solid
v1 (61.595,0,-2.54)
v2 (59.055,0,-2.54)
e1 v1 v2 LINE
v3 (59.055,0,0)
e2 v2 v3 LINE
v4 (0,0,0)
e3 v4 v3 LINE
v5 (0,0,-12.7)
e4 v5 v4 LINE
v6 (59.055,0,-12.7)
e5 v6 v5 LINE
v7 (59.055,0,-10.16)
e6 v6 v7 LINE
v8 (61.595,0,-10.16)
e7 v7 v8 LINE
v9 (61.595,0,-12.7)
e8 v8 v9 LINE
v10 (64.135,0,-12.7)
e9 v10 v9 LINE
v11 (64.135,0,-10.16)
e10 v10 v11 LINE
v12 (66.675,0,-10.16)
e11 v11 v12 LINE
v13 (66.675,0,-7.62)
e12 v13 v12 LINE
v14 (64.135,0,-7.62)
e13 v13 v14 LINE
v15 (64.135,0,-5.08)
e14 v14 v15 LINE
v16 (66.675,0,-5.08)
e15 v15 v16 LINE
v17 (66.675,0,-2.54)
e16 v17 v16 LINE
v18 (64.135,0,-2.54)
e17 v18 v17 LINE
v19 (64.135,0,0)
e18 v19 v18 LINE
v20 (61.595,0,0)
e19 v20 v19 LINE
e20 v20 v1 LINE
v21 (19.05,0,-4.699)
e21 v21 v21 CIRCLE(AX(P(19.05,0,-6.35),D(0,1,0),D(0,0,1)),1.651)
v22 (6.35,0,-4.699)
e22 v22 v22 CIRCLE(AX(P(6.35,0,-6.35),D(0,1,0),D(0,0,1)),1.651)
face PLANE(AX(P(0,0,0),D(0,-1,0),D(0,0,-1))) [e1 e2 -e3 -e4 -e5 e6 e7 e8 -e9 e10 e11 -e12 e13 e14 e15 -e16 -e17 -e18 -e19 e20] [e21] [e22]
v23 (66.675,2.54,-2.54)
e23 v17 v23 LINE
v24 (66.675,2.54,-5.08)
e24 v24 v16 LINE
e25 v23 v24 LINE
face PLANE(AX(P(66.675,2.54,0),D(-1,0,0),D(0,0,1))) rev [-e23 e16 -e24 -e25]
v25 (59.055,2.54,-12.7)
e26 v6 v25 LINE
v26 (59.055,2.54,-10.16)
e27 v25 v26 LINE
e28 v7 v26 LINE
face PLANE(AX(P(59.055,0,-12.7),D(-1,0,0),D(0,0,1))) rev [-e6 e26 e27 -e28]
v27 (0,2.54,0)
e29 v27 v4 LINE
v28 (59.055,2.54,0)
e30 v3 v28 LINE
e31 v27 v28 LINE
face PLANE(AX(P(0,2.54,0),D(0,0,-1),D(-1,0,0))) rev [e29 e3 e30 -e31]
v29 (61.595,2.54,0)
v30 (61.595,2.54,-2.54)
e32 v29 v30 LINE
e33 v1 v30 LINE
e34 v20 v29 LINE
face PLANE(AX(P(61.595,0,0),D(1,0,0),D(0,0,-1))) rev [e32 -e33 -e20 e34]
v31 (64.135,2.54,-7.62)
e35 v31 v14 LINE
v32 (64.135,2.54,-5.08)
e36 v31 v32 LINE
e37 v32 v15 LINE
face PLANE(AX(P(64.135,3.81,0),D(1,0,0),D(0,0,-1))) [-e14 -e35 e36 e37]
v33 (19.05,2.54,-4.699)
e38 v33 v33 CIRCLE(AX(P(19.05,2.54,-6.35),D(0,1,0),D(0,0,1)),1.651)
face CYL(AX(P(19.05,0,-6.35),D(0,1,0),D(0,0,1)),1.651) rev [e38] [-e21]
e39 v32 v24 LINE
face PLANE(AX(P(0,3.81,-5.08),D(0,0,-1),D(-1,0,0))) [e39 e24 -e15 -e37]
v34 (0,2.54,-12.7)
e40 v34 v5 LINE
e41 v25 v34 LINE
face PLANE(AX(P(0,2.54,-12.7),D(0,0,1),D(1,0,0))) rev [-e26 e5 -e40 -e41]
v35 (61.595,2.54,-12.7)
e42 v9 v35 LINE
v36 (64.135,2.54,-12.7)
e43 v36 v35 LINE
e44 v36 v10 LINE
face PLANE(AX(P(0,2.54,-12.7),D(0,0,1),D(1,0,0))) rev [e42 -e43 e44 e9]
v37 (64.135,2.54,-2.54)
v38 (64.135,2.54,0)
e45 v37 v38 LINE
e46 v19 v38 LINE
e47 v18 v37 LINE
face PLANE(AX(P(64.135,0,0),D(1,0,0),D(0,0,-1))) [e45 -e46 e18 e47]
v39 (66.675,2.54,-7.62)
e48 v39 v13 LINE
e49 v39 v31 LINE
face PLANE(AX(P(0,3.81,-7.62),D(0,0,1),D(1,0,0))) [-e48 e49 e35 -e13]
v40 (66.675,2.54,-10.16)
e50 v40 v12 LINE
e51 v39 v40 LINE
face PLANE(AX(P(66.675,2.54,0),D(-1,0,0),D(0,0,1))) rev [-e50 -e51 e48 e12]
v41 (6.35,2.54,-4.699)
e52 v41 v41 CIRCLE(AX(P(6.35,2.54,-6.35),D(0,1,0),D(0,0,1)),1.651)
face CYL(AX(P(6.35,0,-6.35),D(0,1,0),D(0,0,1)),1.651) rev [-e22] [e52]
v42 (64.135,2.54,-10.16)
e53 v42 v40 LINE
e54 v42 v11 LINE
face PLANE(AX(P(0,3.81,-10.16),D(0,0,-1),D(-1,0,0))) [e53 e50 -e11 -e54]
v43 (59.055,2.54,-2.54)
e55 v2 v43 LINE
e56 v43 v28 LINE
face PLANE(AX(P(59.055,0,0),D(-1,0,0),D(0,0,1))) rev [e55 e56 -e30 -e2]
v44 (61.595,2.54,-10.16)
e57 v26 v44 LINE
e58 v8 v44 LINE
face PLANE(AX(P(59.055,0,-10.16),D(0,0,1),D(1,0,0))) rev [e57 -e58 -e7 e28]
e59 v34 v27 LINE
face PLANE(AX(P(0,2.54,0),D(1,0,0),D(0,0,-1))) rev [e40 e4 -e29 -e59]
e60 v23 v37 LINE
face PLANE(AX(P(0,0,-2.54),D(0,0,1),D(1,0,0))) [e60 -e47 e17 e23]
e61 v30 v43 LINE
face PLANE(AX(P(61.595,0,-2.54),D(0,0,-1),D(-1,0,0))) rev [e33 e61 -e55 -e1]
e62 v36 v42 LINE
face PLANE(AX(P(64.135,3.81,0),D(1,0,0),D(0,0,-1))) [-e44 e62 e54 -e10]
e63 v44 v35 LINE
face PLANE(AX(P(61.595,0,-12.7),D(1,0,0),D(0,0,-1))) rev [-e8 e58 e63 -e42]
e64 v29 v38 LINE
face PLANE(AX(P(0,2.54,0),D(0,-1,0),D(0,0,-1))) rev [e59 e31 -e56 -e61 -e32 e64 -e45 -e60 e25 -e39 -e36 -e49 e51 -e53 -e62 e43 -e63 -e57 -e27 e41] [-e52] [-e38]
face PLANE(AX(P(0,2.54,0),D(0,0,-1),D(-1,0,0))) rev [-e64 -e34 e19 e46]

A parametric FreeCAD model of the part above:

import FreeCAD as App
import Part
import Sketcher
from FreeCAD import Vector
Q = App.Units.Quantity

doc = App.newDocument("Part")
body = doc.addObject("PartDesign::Body", "Body")

sketch1 = body.newObject("Sketcher::SketchObject", "Sketch")
sketch1.AttachmentSupport = (doc.getObject("XZ_Plane"), [""])
sketch1.MapMode = "FlatFace"
sketch1.addGeometry(Part.LineSegment(Vector(0, -13, 0), Vector(0, 0, 0)), False)
sketch1.addGeometry(Part.LineSegment(Vector(0, 0, 0), Vector(67, 0, 0)), False)
sketch1.addGeometry(Part.LineSegment(Vector(67, 0, 0), Vector(67, -13, 0)), False)
sketch1.addGeometry(Part.LineSegment(Vector(67, -13, 0), Vector(0, -13, 0)), False)
sketch1.addConstraint(Sketcher.Constraint("Coincident", 0, 2, 1, 1))
sketch1.addConstraint(Sketcher.Constraint("Coincident", 1, 2, 2, 1))
sketch1.addConstraint(Sketcher.Constraint("Coincident", 2, 2, 3, 1))
sketch1.addConstraint(Sketcher.Constraint("Coincident", 3, 2, 0, 1))
sketch1.addConstraint(Sketcher.Constraint("Vertical", 0))
sketch1.addConstraint(Sketcher.Constraint("Horizontal", 1))
sketch1.addConstraint(Sketcher.Constraint("Vertical", 2))
sketch1.addConstraint(Sketcher.Constraint("Horizontal", 3))
sketch1.addConstraint(Sketcher.Constraint("Coincident", 0, 2, -1, 1))
sketch1.addConstraint(Sketcher.Constraint("DistanceY", 0, 1, 0, 2, Q("0.5 in")))
sketch1.addConstraint(Sketcher.Constraint("DistanceX", 1, 1, 1, 2, Q("2.625 in")))
pad1 = body.newObject("PartDesign::Pad", "Pad")
pad1.Profile = sketch1
pad1.Length = Q("0.1 in")
pad1.Reversed = True

sketch2 = body.newObject("Sketcher::SketchObject", "Sketch001")
sketch2.AttachmentSupport = (doc.getObject("XZ_Plane"), [""])
sketch2.MapMode = "FlatFace"
sketch2.AttachmentOffset = App.Placement(Vector(0, 0, -0.1 * 25.4), App.Rotation())
sketch2.addGeometry(Part.LineSegment(Vector(64.1, -12.7, 0), Vector(64.1, -10.2, 0)), False)
sketch2.addGeometry(Part.LineSegment(Vector(64.1, -10.2, 0), Vector(66.7, -10.2, 0)), False)
sketch2.addGeometry(Part.LineSegment(Vector(66.7, -10.2, 0), Vector(66.7, -12.7, 0)), False)
sketch2.addGeometry(Part.LineSegment(Vector(66.7, -12.7, 0), Vector(64.1, -12.7, 0)), False)
sketch2.addGeometry(Part.LineSegment(Vector(64.1, -2.5, 0), Vector(64.1, 0, 0)), False)
sketch2.addGeometry(Part.LineSegment(Vector(64.1, 0, 0), Vector(66.7, 0, 0)), False)
sketch2.addGeometry(Part.LineSegment(Vector(66.7, 0, 0), Vector(66.7, -2.5, 0)), False)
sketch2.addGeometry(Part.LineSegment(Vector(66.7, -2.5, 0), Vector(64.1, -2.5, 0)), False)
sketch2.addGeometry(Part.LineSegment(Vector(64.1, -7.6, 0), Vector(64.1, -5.1, 0)), False)
sketch2.addGeometry(Part.LineSegment(Vector(64.1, -5.1, 0), Vector(66.7, -5.1, 0)), False)
sketch2.addGeometry(Part.LineSegment(Vector(66.7, -5.1, 0), Vector(66.7, -7.6, 0)), False)
sketch2.addGeometry(Part.LineSegment(Vector(66.7, -7.6, 0), Vector(64.1, -7.6, 0)), False)
sketch2.addConstraint(Sketcher.Constraint("Coincident", 0, 2, 1, 1))
sketch2.addConstraint(Sketcher.Constraint("Coincident", 1, 2, 2, 1))
sketch2.addConstraint(Sketcher.Constraint("Coincident", 2, 2, 3, 1))
sketch2.addConstraint(Sketcher.Constraint("Coincident", 3, 2, 0, 1))
sketch2.addConstraint(Sketcher.Constraint("Coincident", 4, 2, 5, 1))
sketch2.addConstraint(Sketcher.Constraint("Coincident", 5, 2, 6, 1))
sketch2.addConstraint(Sketcher.Constraint("Coincident", 6, 2, 7, 1))
sketch2.addConstraint(Sketcher.Constraint("Coincident", 7, 2, 4, 1))
sketch2.addConstraint(Sketcher.Constraint("Coincident", 8, 2, 9, 1))
sketch2.addConstraint(Sketcher.Constraint("Coincident", 9, 2, 10, 1))
sketch2.addConstraint(Sketcher.Constraint("Coincident", 10, 2, 11, 1))
sketch2.addConstraint(Sketcher.Constraint("Coincident", 11, 2, 8, 1))
sketch2.addConstraint(Sketcher.Constraint("Vertical", 0))
sketch2.addConstraint(Sketcher.Constraint("Horizontal", 1))
sketch2.addConstraint(Sketcher.Constraint("Vertical", 2))
sketch2.addConstraint(Sketcher.Constraint("Horizontal", 3))
sketch2.addConstraint(Sketcher.Constraint("Vertical", 4))
sketch2.addConstraint(Sketcher.Constraint("Horizontal", 5))
sketch2.addConstraint(Sketcher.Constraint("Vertical", 6))
sketch2.addConstraint(Sketcher.Constraint("Horizontal", 7))
sketch2.addConstraint(Sketcher.Constraint("Vertical", 8))
sketch2.addConstraint(Sketcher.Constraint("Horizontal", 9))
sketch2.addConstraint(Sketcher.Constraint("Vertical", 10))
sketch2.addConstraint(Sketcher.Constraint("Horizontal", 11))
sketch2.addConstraint(Sketcher.Constraint("PointOnObject", 4, 2, -1))
sketch2.addConstraint(Sketcher.Constraint("Vertical", 3, 2, 4, 2))
sketch2.addConstraint(Sketcher.Constraint("Vertical", 2, 2, 5, 2))
sketch2.addConstraint(Sketcher.Constraint("Vertical", 7, 2, 8, 2))
sketch2.addConstraint(Sketcher.Constraint("Vertical", 6, 2, 9, 2))
sketch2.addConstraint(Sketcher.Constraint("Equal", 11, 0))
sketch2.addConstraint(Sketcher.Constraint("Equal", 2, 4))
sketch2.addConstraint(Sketcher.Constraint("Equal", 6, 8))
sketch2.addConstraint(Sketcher.Constraint("DistanceX", 1, 1, 1, 2, Q("0.1 in")))
sketch2.addConstraint(Sketcher.Constraint("DistanceY", 0, 2, -1, 1, Q("0.4 in")))
sketch2.addConstraint(Sketcher.Constraint("DistanceY", 8, 2, -1, 1, Q("0.2 in")))
sketch2.addConstraint(Sketcher.Constraint("DistanceX", -1, 1, 0, 2, Q("2.525 in")))
pocket1 = body.newObject("PartDesign::Pocket", "Pocket")
pocket1.Profile = sketch2
pocket1.Type = "ThroughAll"
pocket1.Midplane = True

sketch3 = body.newObject("Sketcher::SketchObject", "Sketch002")
sketch3.AttachmentSupport = (doc.getObject("XZ_Plane"), [""])
sketch3.MapMode = "FlatFace"
sketch3.AttachmentOffset = App.Placement(Vector(0, 0, -0.1 * 25.4), App.Rotation())
sketch3.addGeometry(Part.Circle(Vector(6.3, -6.3, 0), Vector(0, 0, 1), 1.7), False)
sketch3.addGeometry(Part.Circle(Vector(19.1, -6.3, 0), Vector(0, 0, 1), 1.7), False)
sketch3.addConstraint(Sketcher.Constraint("Equal", 0, 1))
sketch3.addConstraint(Sketcher.Constraint("Horizontal", 0, 3, 1, 3))
sketch3.addConstraint(Sketcher.Constraint("Diameter", 0, Q("0.13 in")))
sketch3.addConstraint(Sketcher.Constraint("DistanceX", 0, 3, 1, 3, Q("0.5 in")))
sketch3.addConstraint(Sketcher.Constraint("DistanceX", -1, 1, 0, 3, Q("0.25 in")))
sketch3.addConstraint(Sketcher.Constraint("DistanceY", 0, 3, -1, 1, Q("0.25 in")))
pocket2 = body.newObject("PartDesign::Pocket", "Pocket001")
pocket2.Profile = sketch3
pocket2.Type = "ThroughAll"
pocket2.Reversed = True

sketch4 = body.newObject("Sketcher::SketchObject", "Sketch003")
sketch4.AttachmentSupport = (doc.getObject("XZ_Plane"), [""])
sketch4.MapMode = "FlatFace"
sketch4.AttachmentOffset = App.Placement(Vector(0, 0, -0.1 * 25.4), App.Rotation())
sketch4.addGeometry(Part.LineSegment(Vector(59.1, -2.5, 0), Vector(59.1, 0, 0)), False)
sketch4.addGeometry(Part.LineSegment(Vector(59.1, 0, 0), Vector(61.6, 0, 0)), False)
sketch4.addGeometry(Part.LineSegment(Vector(61.6, 0, 0), Vector(61.6, -2.5, 0)), False)
sketch4.addGeometry(Part.LineSegment(Vector(61.6, -2.5, 0), Vector(59.1, -2.5, 0)), False)
sketch4.addGeometry(Part.LineSegment(Vector(59.1, -12.7, 0), Vector(59.1, -10.2, 0)), False)
sketch4.addGeometry(Part.LineSegment(Vector(59.1, -10.2, 0), Vector(61.6, -10.2, 0)), False)
sketch4.addGeometry(Part.LineSegment(Vector(61.6, -10.2, 0), Vector(61.6, -12.7, 0)), False)
sketch4.addGeometry(Part.LineSegment(Vector(61.6, -12.7, 0), Vector(59.1, -12.7, 0)), False)
sketch4.addConstraint(Sketcher.Constraint("Coincident", 0, 2, 1, 1))
sketch4.addConstraint(Sketcher.Constraint("Coincident", 1, 2, 2, 1))
sketch4.addConstraint(Sketcher.Constraint("Coincident", 2, 2, 3, 1))
sketch4.addConstraint(Sketcher.Constraint("Coincident", 3, 2, 0, 1))
sketch4.addConstraint(Sketcher.Constraint("Coincident", 4, 2, 5, 1))
sketch4.addConstraint(Sketcher.Constraint("Coincident", 5, 2, 6, 1))
sketch4.addConstraint(Sketcher.Constraint("Coincident", 6, 2, 7, 1))
sketch4.addConstraint(Sketcher.Constraint("Coincident", 7, 2, 4, 1))
sketch4.addConstraint(Sketcher.Constraint("Vertical", 0))
sketch4.addConstraint(Sketcher.Constraint("Horizontal", 1))
sketch4.addConstraint(Sketcher.Constraint("Vertical", 2))
sketch4.addConstraint(Sketcher.Constraint("Horizontal", 3))
sketch4.addConstraint(Sketcher.Constraint("Vertical", 4))
sketch4.addConstraint(Sketcher.Constraint("Horizontal", 5))
sketch4.addConstraint(Sketcher.Constraint("Vertical", 6))
sketch4.addConstraint(Sketcher.Constraint("Horizontal", 7))
sketch4.addConstraint(Sketcher.Constraint("PointOnObject", 0, 2, -1))
sketch4.addConstraint(Sketcher.Constraint("Vertical", 3, 2, 4, 2))
sketch4.addConstraint(Sketcher.Constraint("Vertical", 2, 2, 5, 2))
sketch4.addConstraint(Sketcher.Constraint("Equal", 7, 0))
sketch4.addConstraint(Sketcher.Constraint("Equal", 2, 4))
sketch4.addConstraint(Sketcher.Constraint("DistanceX", 1, 1, 1, 2, Q("0.1 in")))
sketch4.addConstraint(Sketcher.Constraint("DistanceY", 4, 2, -1, 1, Q("0.4 in")))
sketch4.addConstraint(Sketcher.Constraint("DistanceX", -1, 1, 0, 2, Q("2.325 in")))
pocket3 = body.newObject("PartDesign::Pocket", "Pocket002")
pocket3.Profile = sketch4
pocket3.Type = "ThroughAll"
pocket3.Reversed = True

doc.recompute()
